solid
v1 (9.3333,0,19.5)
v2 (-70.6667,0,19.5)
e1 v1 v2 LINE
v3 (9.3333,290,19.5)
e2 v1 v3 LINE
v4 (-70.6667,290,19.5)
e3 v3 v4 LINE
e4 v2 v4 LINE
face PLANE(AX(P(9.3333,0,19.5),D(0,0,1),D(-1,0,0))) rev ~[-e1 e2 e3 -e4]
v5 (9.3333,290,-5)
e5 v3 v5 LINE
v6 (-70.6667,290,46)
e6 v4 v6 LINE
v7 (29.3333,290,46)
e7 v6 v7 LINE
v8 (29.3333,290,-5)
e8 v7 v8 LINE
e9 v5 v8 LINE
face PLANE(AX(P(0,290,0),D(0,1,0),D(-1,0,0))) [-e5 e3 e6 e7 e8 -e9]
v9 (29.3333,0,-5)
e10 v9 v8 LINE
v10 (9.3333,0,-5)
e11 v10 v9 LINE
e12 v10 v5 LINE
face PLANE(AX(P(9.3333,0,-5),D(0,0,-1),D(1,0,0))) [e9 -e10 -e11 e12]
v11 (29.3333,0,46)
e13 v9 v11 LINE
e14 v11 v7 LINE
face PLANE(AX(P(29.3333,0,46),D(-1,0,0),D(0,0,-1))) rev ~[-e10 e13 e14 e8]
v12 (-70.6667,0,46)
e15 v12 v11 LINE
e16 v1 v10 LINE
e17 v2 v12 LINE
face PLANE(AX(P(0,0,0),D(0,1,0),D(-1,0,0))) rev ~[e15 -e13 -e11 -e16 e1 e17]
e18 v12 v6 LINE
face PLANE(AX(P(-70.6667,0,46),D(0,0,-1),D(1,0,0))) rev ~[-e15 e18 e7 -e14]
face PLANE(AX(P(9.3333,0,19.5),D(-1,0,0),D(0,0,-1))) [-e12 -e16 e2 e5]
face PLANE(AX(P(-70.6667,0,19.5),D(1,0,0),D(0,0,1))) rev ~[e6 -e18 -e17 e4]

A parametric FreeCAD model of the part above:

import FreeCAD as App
import Part
import Sketcher
from FreeCAD import Vector


def add_polygon(sketch, points):
    """Adds a closed chain of lines whose ends are joined by coincident constraints."""
    first, n = sketch.GeometryCount, len(points)
    for a, b in zip(points, points[1:] + points[:1]):
        sketch.addGeometry(Part.LineSegment(App.Vector(*a, 0), App.Vector(*b, 0)), False)
    for i in range(n):
        sketch.addConstraint(Sketcher.Constraint("Coincident", first + i, 2, first + (i + 1) % n, 1))

doc = App.newDocument("Part")
params = doc.addObject("Spreadsheet::Sheet", "Params")
for row, (alias, value) in enumerate([
    ("sketch1_width", "100 mm"),
    ("sketch1_width2", "20 mm"),
    ("sketch1_height", "51 mm"),
    ("sketch1_height2", "26.5 mm"),
    ("pad1_length", "290 mm"),
], start=1):
    params.set(f"A{row}", alias)
    params.set(f"B{row}", "=" + value)
    params.setAlias(f"B{row}", alias)

body = doc.addObject("PartDesign::Body", "Body")

# Sketch on XZ plane
sketch1 = body.newObject("Sketcher::SketchObject", "Sketch")
sketch1.AttachmentSupport = (doc.getObject("XZ_Plane"), [""])
sketch1.MapMode = "FlatFace"
add_polygon(sketch1, [(-70.6667, 19.5), (-70.6667, 46), (29.3333, 46), (29.3333, -5), (9.3333, -5), (9.3333, 19.5)])  # lines 0-5
sketch1.addConstraint([
    Sketcher.Constraint("Vertical", 0),
    Sketcher.Constraint("Horizontal", 1),
    Sketcher.Constraint("Vertical", 2),
    Sketcher.Constraint("Horizontal", 3),
    Sketcher.Constraint("Vertical", 4),
    Sketcher.Constraint("Horizontal", 5),
    Sketcher.Constraint("DistanceX", 1, 1, 1, 2, 100.0),
    Sketcher.Constraint("DistanceX", 3, 2, 3, 1, 20.0),
    Sketcher.Constraint("DistanceY", 2, 2, 2, 1, 51.0),
    Sketcher.Constraint("DistanceY", 0, 1, 0, 2, 26.5),
    Sketcher.Constraint("DistanceY", -1, 1, 0, 2, 46.0),
    Sketcher.Constraint("DistanceX", 0, 2, -1, 1, 70.6667),
])
sketch1.setExpression("Constraints[12]", "Params.sketch1_width")
sketch1.setExpression("Constraints[13]", "Params.sketch1_width2")
sketch1.setExpression("Constraints[14]", "Params.sketch1_height")
sketch1.setExpression("Constraints[15]", "Params.sketch1_height2")
pad1 = body.newObject("PartDesign::Pad", "Pad")
pad1.Profile = sketch1
pad1.setExpression("Length", "Params.pad1_length")
pad1.Reversed = True

doc.recompute()
